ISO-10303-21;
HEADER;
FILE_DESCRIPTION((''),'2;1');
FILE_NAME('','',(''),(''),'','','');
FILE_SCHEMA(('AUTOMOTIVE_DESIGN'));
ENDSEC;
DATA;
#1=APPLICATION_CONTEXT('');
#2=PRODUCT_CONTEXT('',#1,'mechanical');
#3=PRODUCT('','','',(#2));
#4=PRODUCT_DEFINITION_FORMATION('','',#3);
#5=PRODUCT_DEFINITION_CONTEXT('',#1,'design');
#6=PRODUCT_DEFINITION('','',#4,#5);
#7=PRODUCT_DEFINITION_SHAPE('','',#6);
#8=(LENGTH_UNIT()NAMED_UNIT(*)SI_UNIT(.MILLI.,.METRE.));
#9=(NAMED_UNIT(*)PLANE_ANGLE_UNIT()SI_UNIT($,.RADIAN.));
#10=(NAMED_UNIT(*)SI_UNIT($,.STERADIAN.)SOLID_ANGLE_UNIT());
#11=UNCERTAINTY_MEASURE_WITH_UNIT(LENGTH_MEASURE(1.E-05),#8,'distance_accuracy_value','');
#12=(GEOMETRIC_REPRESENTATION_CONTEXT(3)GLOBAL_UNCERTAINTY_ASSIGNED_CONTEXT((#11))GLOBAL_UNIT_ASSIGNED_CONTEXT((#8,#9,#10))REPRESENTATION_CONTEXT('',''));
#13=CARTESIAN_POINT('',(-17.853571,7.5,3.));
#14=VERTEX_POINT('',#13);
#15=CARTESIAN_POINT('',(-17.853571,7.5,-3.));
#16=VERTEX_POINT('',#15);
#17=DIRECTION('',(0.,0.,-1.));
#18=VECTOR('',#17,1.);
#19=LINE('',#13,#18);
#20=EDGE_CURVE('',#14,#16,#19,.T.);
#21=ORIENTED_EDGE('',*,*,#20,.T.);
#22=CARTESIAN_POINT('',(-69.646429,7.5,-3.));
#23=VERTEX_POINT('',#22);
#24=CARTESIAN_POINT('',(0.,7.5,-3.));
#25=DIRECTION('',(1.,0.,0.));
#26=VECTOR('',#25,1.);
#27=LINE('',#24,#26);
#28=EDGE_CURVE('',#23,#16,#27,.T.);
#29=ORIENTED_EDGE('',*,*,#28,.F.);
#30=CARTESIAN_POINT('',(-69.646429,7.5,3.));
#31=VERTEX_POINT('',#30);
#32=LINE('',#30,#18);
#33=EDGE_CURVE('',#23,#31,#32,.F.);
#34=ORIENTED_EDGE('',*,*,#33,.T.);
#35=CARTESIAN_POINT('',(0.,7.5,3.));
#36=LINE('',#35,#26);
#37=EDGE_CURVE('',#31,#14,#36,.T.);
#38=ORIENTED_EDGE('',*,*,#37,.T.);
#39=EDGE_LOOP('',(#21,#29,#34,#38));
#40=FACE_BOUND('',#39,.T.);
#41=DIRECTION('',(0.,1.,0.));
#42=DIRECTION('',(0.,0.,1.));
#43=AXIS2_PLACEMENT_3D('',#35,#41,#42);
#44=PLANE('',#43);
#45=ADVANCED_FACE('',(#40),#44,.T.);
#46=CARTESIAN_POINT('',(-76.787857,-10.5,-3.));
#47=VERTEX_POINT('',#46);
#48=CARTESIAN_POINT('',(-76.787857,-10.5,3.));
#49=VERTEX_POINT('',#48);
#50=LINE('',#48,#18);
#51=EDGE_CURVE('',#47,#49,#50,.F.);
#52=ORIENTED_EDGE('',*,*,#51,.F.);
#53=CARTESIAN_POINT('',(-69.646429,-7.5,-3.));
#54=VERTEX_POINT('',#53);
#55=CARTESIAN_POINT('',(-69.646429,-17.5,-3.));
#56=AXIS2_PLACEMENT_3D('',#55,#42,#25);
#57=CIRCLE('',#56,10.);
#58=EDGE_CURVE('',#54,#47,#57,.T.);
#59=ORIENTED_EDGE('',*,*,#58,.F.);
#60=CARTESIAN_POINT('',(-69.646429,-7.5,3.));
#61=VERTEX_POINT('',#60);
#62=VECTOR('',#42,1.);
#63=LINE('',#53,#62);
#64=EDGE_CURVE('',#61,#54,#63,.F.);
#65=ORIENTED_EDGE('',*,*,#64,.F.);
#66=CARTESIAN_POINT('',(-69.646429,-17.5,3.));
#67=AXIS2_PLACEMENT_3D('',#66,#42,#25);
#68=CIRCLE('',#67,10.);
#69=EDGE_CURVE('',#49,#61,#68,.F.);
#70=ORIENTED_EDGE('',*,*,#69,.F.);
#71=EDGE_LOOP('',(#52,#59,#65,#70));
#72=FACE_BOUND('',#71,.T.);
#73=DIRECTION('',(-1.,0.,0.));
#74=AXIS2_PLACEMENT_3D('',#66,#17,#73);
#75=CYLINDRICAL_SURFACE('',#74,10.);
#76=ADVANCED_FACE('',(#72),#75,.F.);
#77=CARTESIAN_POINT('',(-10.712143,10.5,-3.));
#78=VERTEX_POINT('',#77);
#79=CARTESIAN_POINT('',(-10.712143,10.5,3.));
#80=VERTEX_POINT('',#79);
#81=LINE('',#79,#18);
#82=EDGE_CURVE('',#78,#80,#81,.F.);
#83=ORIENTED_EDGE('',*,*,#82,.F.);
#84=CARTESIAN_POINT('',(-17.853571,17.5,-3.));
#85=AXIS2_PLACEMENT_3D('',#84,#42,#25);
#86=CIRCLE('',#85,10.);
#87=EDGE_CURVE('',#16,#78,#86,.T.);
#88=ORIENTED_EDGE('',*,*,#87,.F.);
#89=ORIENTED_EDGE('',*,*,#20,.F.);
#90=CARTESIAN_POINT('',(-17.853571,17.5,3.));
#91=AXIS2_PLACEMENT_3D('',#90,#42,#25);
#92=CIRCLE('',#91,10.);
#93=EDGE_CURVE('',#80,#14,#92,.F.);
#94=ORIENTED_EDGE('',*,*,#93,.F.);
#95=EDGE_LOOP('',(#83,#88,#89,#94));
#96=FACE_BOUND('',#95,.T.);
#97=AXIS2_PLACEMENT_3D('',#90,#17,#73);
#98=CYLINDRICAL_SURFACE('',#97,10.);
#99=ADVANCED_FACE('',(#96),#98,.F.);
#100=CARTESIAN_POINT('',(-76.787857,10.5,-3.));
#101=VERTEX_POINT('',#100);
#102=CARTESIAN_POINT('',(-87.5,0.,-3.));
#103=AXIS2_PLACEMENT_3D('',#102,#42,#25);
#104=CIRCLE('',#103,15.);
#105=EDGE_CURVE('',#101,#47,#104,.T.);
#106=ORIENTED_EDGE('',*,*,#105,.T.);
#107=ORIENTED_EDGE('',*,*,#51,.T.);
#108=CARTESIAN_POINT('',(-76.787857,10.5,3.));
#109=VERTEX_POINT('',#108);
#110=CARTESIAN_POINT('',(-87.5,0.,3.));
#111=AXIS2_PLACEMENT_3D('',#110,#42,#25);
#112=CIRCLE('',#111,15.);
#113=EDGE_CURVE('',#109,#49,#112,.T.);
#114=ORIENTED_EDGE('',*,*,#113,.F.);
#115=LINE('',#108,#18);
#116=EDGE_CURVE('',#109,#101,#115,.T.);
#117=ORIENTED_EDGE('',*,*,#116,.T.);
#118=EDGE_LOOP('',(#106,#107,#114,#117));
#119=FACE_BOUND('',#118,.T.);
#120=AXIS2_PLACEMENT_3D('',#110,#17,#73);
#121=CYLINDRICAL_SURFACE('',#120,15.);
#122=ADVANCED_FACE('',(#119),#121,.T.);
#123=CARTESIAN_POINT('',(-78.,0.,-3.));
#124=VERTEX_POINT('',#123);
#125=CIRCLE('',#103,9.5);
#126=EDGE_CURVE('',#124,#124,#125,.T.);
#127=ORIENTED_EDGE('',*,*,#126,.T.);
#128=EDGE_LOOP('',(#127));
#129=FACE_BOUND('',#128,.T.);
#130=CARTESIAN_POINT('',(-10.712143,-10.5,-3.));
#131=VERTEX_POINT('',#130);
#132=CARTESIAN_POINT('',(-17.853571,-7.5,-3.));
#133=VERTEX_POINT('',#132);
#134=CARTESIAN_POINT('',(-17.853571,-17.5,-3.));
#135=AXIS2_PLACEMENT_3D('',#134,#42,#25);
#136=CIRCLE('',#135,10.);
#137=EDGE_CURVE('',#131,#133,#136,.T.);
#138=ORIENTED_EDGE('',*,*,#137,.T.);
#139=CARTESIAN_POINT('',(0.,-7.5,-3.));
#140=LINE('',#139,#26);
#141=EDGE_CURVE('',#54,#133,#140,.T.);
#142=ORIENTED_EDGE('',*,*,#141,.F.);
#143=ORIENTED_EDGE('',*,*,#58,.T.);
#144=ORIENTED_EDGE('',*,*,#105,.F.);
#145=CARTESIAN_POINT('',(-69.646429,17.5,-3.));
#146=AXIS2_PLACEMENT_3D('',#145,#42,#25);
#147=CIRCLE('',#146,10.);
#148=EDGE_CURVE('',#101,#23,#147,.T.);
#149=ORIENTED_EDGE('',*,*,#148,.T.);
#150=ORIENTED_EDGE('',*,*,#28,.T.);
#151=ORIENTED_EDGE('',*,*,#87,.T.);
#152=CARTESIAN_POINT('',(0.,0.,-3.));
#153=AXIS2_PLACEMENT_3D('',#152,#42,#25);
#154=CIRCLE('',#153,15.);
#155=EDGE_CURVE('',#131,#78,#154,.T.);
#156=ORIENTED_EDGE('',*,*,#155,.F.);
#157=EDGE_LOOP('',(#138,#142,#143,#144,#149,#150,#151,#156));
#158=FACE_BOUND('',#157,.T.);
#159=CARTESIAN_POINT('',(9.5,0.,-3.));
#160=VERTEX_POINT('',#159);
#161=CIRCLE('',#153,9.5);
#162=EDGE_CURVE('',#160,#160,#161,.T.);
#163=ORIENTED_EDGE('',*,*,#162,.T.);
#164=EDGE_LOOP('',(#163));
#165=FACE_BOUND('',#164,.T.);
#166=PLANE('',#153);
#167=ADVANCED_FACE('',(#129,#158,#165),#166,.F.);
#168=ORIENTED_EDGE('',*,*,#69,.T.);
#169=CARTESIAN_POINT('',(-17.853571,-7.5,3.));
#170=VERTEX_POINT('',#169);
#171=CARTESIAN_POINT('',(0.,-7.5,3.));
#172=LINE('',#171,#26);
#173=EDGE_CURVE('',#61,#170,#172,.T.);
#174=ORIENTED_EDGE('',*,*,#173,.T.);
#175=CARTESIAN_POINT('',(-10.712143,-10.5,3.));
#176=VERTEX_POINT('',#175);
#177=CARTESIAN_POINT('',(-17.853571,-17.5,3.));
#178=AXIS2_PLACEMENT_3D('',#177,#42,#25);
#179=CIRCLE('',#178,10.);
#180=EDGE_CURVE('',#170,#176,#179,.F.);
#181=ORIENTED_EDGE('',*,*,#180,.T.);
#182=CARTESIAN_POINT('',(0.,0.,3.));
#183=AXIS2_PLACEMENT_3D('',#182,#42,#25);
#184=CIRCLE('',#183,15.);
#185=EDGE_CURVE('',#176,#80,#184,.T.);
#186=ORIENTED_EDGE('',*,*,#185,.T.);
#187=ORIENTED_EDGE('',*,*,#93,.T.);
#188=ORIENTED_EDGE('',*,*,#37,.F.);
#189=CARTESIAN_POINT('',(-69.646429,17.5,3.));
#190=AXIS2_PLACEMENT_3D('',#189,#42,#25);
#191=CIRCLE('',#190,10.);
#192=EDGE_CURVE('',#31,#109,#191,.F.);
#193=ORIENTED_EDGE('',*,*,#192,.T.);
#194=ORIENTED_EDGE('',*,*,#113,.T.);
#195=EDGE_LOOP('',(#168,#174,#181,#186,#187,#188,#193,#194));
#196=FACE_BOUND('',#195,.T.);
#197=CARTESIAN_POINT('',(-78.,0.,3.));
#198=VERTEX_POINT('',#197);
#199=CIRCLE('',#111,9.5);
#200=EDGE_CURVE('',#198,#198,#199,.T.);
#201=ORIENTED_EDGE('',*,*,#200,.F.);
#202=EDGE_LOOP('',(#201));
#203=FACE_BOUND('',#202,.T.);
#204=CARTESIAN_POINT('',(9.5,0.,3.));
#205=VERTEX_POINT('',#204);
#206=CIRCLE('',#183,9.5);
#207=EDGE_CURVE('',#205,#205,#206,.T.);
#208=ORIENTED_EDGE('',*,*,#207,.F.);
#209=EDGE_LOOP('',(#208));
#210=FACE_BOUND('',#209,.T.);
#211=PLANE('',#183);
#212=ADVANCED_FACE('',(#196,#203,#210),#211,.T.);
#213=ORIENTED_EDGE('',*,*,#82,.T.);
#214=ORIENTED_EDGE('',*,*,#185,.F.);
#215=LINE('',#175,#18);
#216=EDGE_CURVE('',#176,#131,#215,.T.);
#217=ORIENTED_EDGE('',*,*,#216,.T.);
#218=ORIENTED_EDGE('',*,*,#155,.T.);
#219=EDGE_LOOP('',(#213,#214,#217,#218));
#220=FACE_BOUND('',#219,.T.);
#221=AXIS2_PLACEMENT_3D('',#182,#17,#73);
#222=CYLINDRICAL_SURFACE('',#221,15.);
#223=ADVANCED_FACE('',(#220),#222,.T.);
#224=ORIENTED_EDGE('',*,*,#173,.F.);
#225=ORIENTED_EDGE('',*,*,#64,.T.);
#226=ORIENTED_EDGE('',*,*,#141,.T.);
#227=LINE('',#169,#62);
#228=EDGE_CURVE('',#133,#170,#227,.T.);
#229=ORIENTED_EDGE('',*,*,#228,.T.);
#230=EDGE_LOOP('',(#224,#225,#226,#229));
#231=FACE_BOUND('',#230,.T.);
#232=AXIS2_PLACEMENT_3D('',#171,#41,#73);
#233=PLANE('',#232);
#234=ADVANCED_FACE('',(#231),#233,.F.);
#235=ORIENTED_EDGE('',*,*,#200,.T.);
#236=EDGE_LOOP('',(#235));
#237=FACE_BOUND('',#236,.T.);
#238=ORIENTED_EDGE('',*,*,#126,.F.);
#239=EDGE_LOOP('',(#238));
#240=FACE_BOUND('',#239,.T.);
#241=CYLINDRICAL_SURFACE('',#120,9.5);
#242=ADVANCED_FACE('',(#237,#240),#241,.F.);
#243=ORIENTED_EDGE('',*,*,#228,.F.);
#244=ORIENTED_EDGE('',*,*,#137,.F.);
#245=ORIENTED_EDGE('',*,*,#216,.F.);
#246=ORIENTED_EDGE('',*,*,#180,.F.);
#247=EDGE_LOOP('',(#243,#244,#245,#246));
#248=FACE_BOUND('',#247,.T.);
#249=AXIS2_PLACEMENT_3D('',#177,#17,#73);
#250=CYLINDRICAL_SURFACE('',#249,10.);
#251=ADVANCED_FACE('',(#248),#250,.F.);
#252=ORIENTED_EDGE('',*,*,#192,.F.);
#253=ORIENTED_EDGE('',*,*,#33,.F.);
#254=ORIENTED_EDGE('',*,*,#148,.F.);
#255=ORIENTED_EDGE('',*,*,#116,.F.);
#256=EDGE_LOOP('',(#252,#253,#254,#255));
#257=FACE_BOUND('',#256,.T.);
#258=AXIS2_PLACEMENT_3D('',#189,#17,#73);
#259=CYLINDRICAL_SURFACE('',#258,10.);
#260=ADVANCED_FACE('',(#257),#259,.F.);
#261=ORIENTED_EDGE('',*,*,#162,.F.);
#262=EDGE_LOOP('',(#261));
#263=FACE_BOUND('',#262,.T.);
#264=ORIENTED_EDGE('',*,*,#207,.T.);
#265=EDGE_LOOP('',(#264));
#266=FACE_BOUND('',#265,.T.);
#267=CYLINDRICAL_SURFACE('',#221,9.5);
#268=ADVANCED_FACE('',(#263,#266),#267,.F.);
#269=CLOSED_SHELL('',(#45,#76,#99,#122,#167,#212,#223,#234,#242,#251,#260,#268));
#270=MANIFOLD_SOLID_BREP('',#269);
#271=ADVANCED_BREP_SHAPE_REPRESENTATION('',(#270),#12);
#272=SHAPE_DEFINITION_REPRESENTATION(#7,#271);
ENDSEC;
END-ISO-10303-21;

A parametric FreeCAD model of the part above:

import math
import FreeCAD as App
import Part
import Sketcher
from FreeCAD import Vector
Q = App.Units.Quantity


def edges_at(feature, points):
    """Names of the edges that pass closest to the given points."""
    edges = feature.Shape.Edges
    near = lambda p: min(range(len(edges)), key=lambda i: edges[i].distToShape(Part.Vertex(*p))[0])
    return sorted({f"Edge{near(p) + 1}" for p in points})

doc = App.newDocument("Part")
body = doc.addObject("PartDesign::Body", "Body")

# Sketch on XY plane
sketch1 = body.newObject("Sketcher::SketchObject", "Sketch")
sketch1.AttachmentSupport = (doc.getObject("XY_Plane"), [""])
sketch1.MapMode = "FlatFace"
sketch1.addGeometry([
    Part.LineSegment(Vector(-13, 8, 0), Vector(-75, 8, 0)),  # 0
    Part.ArcOfCircle(Part.Circle(Vector(-88, 0, 0), Vector(0, 0, 1), 15), math.radians(30), math.radians(210)),  # 1
    Part.ArcOfCircle(Part.Circle(Vector(-88, 0, 0), Vector(0, 0, 1), 15), math.radians(-150), math.radians(-30)),  # 2
    Part.LineSegment(Vector(-75, -8, 0), Vector(-13, -8, 0)),  # 3
    Part.ArcOfCircle(Part.Circle(Vector(0, 0, 0), Vector(0, 0, 1), 15), math.radians(-150), math.radians(-30)),  # 4
    Part.ArcOfCircle(Part.Circle(Vector(0, 0, 0), Vector(0, 0, 1), 15), math.radians(-30), math.radians(150)),  # 5
    Part.Circle(Vector(-88, 0, 0), Vector(0, 0, 1), 10),  # 6
    Part.Circle(Vector(0, 0, 0), Vector(0, 0, 1), 10),  # 7
], False)
sketch1.addConstraint([
    Sketcher.Constraint("Coincident", 0, 2, 1, 1),
    Sketcher.Constraint("Tangent", 1, 2, 2, 1),
    Sketcher.Constraint("Coincident", 2, 2, 3, 1),
    Sketcher.Constraint("Coincident", 3, 2, 4, 1),
    Sketcher.Constraint("Tangent", 4, 2, 5, 1),
    Sketcher.Constraint("Coincident", 5, 2, 0, 1),
    Sketcher.Constraint("Horizontal", 0),
    Sketcher.Constraint("Horizontal", 3),
    Sketcher.Constraint("Coincident", 4, 3, -1, 1),
    Sketcher.Constraint("Coincident", 7, 3, -1, 1),
    Sketcher.Constraint("Coincident", 6, 3, 1, 3),
    Sketcher.Constraint("Equal", 1, 2),
    Sketcher.Constraint("Equal", 2, 4),
    Sketcher.Constraint("Equal", 4, 5),
    Sketcher.Constraint("Equal", 6, 7),
    Sketcher.Constraint("Symmetric", 0, 2, 2, 2, -1),
    Sketcher.Constraint("Horizontal", 3, 2, 4, 2),
    Sketcher.Constraint("Diameter", 6, Q("19 mm")),
    Sketcher.Constraint("Radius", 1, Q("15 mm")),
    Sketcher.Constraint("DistanceX", 1, 2, 1, 3, Q("13 mm")),
    Sketcher.Constraint("DistanceY", 2, 2, 0, 2, Q("15 mm")),
    Sketcher.Constraint("DistanceX", 1, 3, -1, 1, Q("87.5 mm")),
])
pad1 = body.newObject("PartDesign::Pad", "Pad")
pad1.Profile = sketch1
pad1.Length = 6
pad1.Midplane = True
doc.recompute()

fillet = body.newObject("PartDesign::Fillet", "Fillet")
fillet.Base = (pad1, edges_at(pad1, [
    (-74.51, 7.5, -1.5),
    (-12.99, 7.5, -1.5),
    (-12.99, -7.5, -1.5),
    (-74.51, -7.5, -1.5),
]))
fillet.Radius = 10

doc.recompute()
